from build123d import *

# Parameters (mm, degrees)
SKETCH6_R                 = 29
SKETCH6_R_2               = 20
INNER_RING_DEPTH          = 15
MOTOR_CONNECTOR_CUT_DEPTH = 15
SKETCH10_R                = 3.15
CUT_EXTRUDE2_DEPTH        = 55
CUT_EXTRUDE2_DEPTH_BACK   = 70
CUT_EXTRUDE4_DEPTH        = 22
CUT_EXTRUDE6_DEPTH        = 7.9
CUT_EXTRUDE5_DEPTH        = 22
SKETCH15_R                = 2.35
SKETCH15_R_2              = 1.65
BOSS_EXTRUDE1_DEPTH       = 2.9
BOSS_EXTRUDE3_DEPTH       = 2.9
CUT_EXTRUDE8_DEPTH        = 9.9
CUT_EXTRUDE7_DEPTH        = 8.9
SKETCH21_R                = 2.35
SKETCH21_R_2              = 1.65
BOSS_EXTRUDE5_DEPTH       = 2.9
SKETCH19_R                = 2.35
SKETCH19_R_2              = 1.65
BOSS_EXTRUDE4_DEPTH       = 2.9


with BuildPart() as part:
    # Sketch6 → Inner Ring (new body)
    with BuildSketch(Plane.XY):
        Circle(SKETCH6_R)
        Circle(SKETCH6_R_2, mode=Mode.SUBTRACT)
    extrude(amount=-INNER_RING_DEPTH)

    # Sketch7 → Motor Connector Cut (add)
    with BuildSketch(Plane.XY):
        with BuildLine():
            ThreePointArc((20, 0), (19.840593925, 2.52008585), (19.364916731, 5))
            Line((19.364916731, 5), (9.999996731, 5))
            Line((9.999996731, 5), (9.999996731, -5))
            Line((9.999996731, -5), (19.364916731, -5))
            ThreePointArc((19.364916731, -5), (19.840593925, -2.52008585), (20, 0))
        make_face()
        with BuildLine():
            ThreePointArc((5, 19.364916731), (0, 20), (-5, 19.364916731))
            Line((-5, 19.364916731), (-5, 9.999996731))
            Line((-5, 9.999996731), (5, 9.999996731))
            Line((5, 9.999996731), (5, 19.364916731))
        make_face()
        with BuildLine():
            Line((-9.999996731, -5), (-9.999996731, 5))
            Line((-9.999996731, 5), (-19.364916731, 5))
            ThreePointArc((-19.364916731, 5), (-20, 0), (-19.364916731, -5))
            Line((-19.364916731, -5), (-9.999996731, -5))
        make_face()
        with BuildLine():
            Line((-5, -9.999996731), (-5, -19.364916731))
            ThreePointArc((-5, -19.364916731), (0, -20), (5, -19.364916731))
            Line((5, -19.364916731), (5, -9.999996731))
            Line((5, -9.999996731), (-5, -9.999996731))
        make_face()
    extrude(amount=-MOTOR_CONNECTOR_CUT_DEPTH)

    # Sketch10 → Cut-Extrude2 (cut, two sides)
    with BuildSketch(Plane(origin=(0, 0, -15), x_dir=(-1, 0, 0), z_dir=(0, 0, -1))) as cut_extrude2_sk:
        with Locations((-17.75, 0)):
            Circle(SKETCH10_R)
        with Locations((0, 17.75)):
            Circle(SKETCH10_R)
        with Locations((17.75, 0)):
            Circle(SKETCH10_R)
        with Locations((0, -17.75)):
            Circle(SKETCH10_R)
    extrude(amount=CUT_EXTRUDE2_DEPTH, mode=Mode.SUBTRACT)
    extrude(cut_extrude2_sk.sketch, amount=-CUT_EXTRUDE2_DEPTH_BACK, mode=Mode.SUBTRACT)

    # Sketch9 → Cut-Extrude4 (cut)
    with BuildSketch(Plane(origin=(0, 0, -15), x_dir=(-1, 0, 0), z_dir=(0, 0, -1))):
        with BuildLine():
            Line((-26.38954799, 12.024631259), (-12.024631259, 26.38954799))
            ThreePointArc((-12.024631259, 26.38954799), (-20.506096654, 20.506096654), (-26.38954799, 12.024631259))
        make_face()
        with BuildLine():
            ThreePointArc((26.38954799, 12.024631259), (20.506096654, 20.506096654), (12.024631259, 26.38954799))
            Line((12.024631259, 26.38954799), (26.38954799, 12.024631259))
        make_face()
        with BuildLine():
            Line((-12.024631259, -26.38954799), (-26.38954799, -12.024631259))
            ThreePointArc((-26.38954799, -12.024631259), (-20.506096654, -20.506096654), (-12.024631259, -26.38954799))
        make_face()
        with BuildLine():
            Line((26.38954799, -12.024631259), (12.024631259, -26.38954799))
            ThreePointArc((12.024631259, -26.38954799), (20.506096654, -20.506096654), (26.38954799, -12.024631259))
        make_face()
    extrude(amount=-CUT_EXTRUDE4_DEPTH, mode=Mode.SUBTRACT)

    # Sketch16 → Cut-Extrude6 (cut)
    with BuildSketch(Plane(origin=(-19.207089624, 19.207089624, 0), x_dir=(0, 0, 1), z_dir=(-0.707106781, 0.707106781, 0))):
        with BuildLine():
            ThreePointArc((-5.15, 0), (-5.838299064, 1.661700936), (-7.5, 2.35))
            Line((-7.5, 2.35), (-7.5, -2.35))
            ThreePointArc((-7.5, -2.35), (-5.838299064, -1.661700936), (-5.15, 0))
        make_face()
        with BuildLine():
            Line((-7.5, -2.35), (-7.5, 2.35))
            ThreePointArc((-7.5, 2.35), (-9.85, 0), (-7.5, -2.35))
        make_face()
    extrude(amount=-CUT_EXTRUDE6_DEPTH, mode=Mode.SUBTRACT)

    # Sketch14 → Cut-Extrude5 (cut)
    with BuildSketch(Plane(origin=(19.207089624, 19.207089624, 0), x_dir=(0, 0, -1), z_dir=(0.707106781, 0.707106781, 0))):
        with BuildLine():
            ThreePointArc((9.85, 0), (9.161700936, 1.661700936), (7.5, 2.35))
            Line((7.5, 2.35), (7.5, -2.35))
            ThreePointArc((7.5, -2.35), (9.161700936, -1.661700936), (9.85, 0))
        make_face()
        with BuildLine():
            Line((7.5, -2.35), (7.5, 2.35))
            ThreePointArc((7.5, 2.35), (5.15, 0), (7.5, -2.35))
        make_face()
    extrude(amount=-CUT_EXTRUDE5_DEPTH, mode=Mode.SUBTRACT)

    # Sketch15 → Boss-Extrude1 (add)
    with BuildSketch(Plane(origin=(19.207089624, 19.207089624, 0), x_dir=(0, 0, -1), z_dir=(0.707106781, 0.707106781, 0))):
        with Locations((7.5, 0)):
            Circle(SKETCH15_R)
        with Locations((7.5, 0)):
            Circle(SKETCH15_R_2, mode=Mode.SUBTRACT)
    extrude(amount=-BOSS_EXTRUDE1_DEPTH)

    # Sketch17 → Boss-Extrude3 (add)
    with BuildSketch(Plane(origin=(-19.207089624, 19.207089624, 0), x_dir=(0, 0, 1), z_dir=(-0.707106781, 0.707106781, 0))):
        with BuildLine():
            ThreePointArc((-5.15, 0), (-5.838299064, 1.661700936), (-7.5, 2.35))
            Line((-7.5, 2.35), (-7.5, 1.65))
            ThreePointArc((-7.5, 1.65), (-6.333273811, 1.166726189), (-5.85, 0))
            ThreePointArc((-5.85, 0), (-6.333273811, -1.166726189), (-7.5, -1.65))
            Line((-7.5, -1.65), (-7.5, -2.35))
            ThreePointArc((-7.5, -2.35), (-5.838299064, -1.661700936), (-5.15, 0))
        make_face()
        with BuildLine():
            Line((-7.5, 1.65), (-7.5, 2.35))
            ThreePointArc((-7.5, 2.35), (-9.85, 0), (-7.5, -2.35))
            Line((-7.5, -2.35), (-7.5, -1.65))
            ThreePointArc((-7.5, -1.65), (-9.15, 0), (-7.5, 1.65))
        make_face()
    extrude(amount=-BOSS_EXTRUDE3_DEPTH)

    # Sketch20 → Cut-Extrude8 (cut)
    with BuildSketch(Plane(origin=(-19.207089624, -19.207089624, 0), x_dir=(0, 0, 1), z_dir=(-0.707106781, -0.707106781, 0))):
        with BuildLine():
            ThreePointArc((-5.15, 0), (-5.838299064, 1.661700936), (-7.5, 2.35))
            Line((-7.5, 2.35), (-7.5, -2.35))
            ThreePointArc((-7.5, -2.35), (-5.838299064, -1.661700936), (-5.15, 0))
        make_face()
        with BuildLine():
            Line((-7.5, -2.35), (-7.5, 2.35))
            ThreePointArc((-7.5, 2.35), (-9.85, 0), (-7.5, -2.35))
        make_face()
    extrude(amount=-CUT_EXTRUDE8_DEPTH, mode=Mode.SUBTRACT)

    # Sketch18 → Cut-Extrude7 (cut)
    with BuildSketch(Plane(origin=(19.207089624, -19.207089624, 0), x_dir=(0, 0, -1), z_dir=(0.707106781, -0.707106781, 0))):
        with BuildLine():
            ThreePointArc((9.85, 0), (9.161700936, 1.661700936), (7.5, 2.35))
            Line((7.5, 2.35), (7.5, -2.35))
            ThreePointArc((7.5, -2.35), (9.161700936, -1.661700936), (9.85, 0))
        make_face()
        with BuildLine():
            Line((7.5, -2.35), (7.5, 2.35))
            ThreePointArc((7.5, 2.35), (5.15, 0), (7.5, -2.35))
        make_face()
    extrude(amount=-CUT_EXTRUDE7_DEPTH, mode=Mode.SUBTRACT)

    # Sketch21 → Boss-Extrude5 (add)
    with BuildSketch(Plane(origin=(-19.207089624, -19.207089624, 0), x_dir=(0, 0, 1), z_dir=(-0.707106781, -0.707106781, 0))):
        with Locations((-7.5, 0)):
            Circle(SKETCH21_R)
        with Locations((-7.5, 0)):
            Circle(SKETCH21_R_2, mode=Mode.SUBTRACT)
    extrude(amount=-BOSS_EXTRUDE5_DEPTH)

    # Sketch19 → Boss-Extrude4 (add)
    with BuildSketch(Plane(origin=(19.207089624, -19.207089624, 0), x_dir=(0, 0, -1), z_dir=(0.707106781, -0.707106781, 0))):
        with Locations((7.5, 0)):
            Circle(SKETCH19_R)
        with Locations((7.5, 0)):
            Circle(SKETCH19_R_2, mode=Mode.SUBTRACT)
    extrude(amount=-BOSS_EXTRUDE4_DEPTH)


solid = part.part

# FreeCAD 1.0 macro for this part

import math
import FreeCAD as App
import Part
import Sketcher
from FreeCAD import Vector

doc = App.newDocument("Part")
params = doc.addObject("Spreadsheet::Sheet", "Params")
for row, (alias, value) in enumerate([
    ("sketch1_diameter", "58 mm"),
    ("sketch1_diameter2", "40 mm"),
    ("pad1_length", "15 mm"),
    ("sketch2_radius", "20 mm"),
    ("sketch2_width", "10 mm"),
    ("pad2_length", "15 mm"),
    ("sketch3_diameter", "6.3 mm"),
    ("sketch4_radius", "29 mm"),
    ("pocket2_length", "22 mm"),
    ("sketch5_radius", "2.35 mm"),
    ("pocket3_length", "7.9 mm"),
    ("sketch6_radius", "2.35 mm"),
    ("pocket4_length", "22 mm"),
    ("sketch7_diameter", "4.7 mm"),
    ("sketch7_diameter2", "3.3 mm"),
    ("pad3_length", "2.9 mm"),
    ("sketch8_radius", "2.35 mm"),
    ("sketch8_radius2", "1.65 mm"),
    ("pad4_length", "2.9 mm"),
    ("sketch9_radius", "2.35 mm"),
    ("pocket5_length", "9.9 mm"),
    ("sketch10_radius", "2.35 mm"),
    ("pocket6_length", "8.9 mm"),
    ("sketch11_diameter", "4.7 mm"),
    ("sketch11_diameter2", "3.3 mm"),
    ("pad5_length", "2.9 mm"),
    ("sketch12_diameter", "4.7 mm"),
    ("sketch12_diameter2", "3.3 mm"),
    ("pad6_length", "2.9 mm"),
], start=1):
    params.set(f"A{row}", alias)
    params.set(f"B{row}", "=" + value)
    params.setAlias(f"B{row}", alias)

body = doc.addObject("PartDesign::Body", "Body")

sketch1 = body.newObject("Sketcher::SketchObject", "Sketch")
sketch1.AttachmentSupport = (doc.getObject("XY_Plane"), [""])
sketch1.MapMode = "FlatFace"
sketch1.addGeometry([
    Part.Circle(Vector(0, 0, 0), Vector(0, 0, 1), 29),
    Part.Circle(Vector(0, 0, 0), Vector(0, 0, 1), 20),
], False)
sketch1.addConstraint([
    Sketcher.Constraint("Coincident", 0, 3, -1, 1),
    Sketcher.Constraint("Coincident", 1, 3, -1, 1),
    Sketcher.Constraint("Diameter", 0, 58.0),
    Sketcher.Constraint("Diameter", 1, 40.0),
])
sketch1.setExpression("Constraints[2]", "Params.sketch1_diameter")
sketch1.setExpression("Constraints[3]", "Params.sketch1_diameter2")
pad1 = body.newObject("PartDesign::Pad", "Pad")
pad1.Profile = sketch1
pad1.setExpression("Length", "Params.pad1_length")
pad1.Reversed = True

sketch2 = body.newObject("Sketcher::SketchObject", "Sketch001")
sketch2.AttachmentSupport = (doc.getObject("XY_Plane"), [""])
sketch2.MapMode = "FlatFace"
sketch2.addGeometry([
    Part.ArcOfCircle(Part.Circle(Vector(0, 0, 0), Vector(0, 0, 1), 20), math.radians(0), math.radians(14.477512)),
    Part.LineSegment(Vector(19.364917, 5, 0), Vector(9.999997, 5, 0)),
    Part.LineSegment(Vector(9.999997, 5, 0), Vector(9.999997, -5, 0)),
    Part.LineSegment(Vector(9.999997, -5, 0), Vector(19.364917, -5, 0)),
    Part.ArcOfCircle(Part.Circle(Vector(0, 0, 0), Vector(0, 0, 1), 20), math.radians(-14.477512), math.radians(0)),
    Part.ArcOfCircle(Part.Circle(Vector(0, 0, 0), Vector(0, 0, 1), 20), math.radians(75.522488), math.radians(104.477512)),
    Part.LineSegment(Vector(-5, 19.364917, 0), Vector(-5, 9.999997, 0)),
    Part.LineSegment(Vector(-5, 9.999997, 0), Vector(5, 9.999997, 0)),
    Part.LineSegment(Vector(5, 9.999997, 0), Vector(5, 19.364917, 0)),
    Part.LineSegment(Vector(-9.999997, -5, 0), Vector(-9.999997, 5, 0)),
    Part.LineSegment(Vector(-9.999997, 5, 0), Vector(-19.364917, 5, 0)),
    Part.ArcOfCircle(Part.Circle(Vector(0, 0, 0), Vector(0, 0, 1), 20), math.radians(165.522488), math.radians(194.477512)),
    Part.LineSegment(Vector(-19.364917, -5, 0), Vector(-9.999997, -5, 0)),
    Part.LineSegment(Vector(-5, -9.999997, 0), Vector(-5, -19.364917, 0)),
    Part.ArcOfCircle(Part.Circle(Vector(0, 0, 0), Vector(0, 0, 1), 20), math.radians(-104.477512), math.radians(-75.522488)),
    Part.LineSegment(Vector(5, -19.364917, 0), Vector(5, -9.999997, 0)),
    Part.LineSegment(Vector(5, -9.999997, 0), Vector(-5, -9.999997, 0)),
], False)
sketch2.addConstraint([
    Sketcher.Constraint("Coincident", 0, 2, 1, 1),
    Sketcher.Constraint("Coincident", 1, 2, 2, 1),
    Sketcher.Constraint("Coincident", 2, 2, 3, 1),
    Sketcher.Constraint("Coincident", 3, 2, 4, 1),
    Sketcher.Constraint("Tangent", 4, 2, 0, 1),
    Sketcher.Constraint("Coincident", 5, 2, 6, 1),
    Sketcher.Constraint("Coincident", 6, 2, 7, 1),
    Sketcher.Constraint("Coincident", 7, 2, 8, 1),
    Sketcher.Constraint("Coincident", 8, 2, 5, 1),
    Sketcher.Constraint("Coincident", 9, 2, 10, 1),
    Sketcher.Constraint("Coincident", 10, 2, 11, 1),
    Sketcher.Constraint("Coincident", 11, 2, 12, 1),
    Sketcher.Constraint("Coincident", 12, 2, 9, 1),
    Sketcher.Constraint("Coincident", 13, 2, 14, 1),
    Sketcher.Constraint("Coincident", 14, 2, 15, 1),
    Sketcher.Constraint("Coincident", 15, 2, 16, 1),
    Sketcher.Constraint("Coincident", 16, 2, 13, 1),
    Sketcher.Constraint("Horizontal", 1),
    Sketcher.Constraint("Vertical", 2),
    Sketcher.Constraint("Horizontal", 3),
    Sketcher.Constraint("Vertical", 6),
    Sketcher.Constraint("Horizontal", 7),
    Sketcher.Constraint("Vertical", 8),
    Sketcher.Constraint("Vertical", 9),
    Sketcher.Constraint("Horizontal", 10),
    Sketcher.Constraint("Horizontal", 12),
    Sketcher.Constraint("Vertical", 13),
    Sketcher.Constraint("Vertical", 15),
    Sketcher.Constraint("Horizontal", 16),
    Sketcher.Constraint("Coincident", 0, 3, -1, 1),
    Sketcher.Constraint("Coincident", 5, 3, -1, 1),
    Sketcher.Constraint("Coincident", 11, 3, -1, 1),
    Sketcher.Constraint("Coincident", 14, 3, -1, 1),
    Sketcher.Constraint("Equal", 0, 4),
    Sketcher.Constraint("Equal", 4, 5),
    Sketcher.Constraint("Equal", 5, 11),
    Sketcher.Constraint("Equal", 11, 14),
    Sketcher.Constraint("Symmetric", 2, 2, 9, 2, -1, 1),
    Sketcher.Constraint("Symmetric", 6, 2, 15, 2, -1, 1),
    Sketcher.Constraint("PointOnObject", 4, 2, -1),
    Sketcher.Constraint("Horizontal", 5, 2, 8, 2),
    Sketcher.Constraint("Horizontal", 1, 2, 9, 2),
    Sketcher.Constraint("Horizontal", 3, 2, 11, 2),
    Sketcher.Constraint("Horizontal", 13, 2, 14, 2),
    Sketcher.Constraint("Equal", 16, 2),
    Sketcher.Constraint("Equal", 12, 6),
    Sketcher.Constraint("Radius", 0, 20.0),
    Sketcher.Constraint("DistanceX", 7, 1, 7, 2, 10.0),
    Sketcher.Constraint("DistanceX", 1, 2, 1, 1, 9.36492),
])
sketch2.setExpression("Constraints[46]", "Params.sketch2_radius")
sketch2.setExpression("Constraints[47]", "Params.sketch2_width")
pad2 = body.newObject("PartDesign::Pad", "Pad001")
pad2.Profile = sketch2
pad2.setExpression("Length", "Params.pad2_length")
pad2.Reversed = True

sketch3 = body.newObject("Sketcher::SketchObject", "Sketch002")
sketch3.AttachmentSupport = (doc.getObject("XY_Plane"), [""])
sketch3.MapMode = "FlatFace"
sketch3.AttachmentOffset = App.Placement(Vector(0, 0, -15), App.Rotation())
sketch3.addGeometry([
    Part.Circle(Vector(17.75, 0, 0), Vector(0, 0, 1), 3.15),
    Part.Circle(Vector(0, 17.75, 0), Vector(0, 0, 1), 3.15),
    Part.Circle(Vector(-17.75, 0, 0), Vector(0, 0, 1), 3.15),
    Part.Circle(Vector(0, -17.75, 0), Vector(0, 0, 1), 3.15),
], False)
sketch3.addConstraint([
    Sketcher.Constraint("Equal", 0, 1),
    Sketcher.Constraint("Equal", 1, 2),
    Sketcher.Constraint("Equal", 2, 3),
    Sketcher.Constraint("Symmetric", 0, 3, 2, 3, -1, 1),
    Sketcher.Constraint("Symmetric", 1, 3, 3, 3, -1, 1),
    Sketcher.Constraint("PointOnObject", 0, 3, -1),
    Sketcher.Constraint("PointOnObject", 1, 3, -2),
    Sketcher.Constraint("Diameter", 0, 6.3),
    Sketcher.Constraint("DistanceX", 2, 3, 0, 3, 35.5),
    Sketcher.Constraint("DistanceY", 3, 3, 1, 3, 35.5),
])
sketch3.setExpression("Constraints[7]", "Params.sketch3_diameter")
pocket1 = body.newObject("PartDesign::Pocket", "Pocket")
pocket1.Profile = sketch3
pocket1.Type = "ThroughAll"
pocket1.Midplane = True

sketch4 = body.newObject("Sketcher::SketchObject", "Sketch003")
sketch4.AttachmentSupport = (doc.getObject("XY_Plane"), [""])
sketch4.MapMode = "FlatFace"
sketch4.AttachmentOffset = App.Placement(Vector(0, 0, -15), App.Rotation())
sketch4.addGeometry([
    Part.LineSegment(Vector(26.389548, 12.024631, 0), Vector(12.024631, 26.389548, 0)),
    Part.ArcOfCircle(Part.Circle(Vector(0, 0, 0), Vector(0, 0, 1), 29), math.radians(24.496802), math.radians(65.503198)),
    Part.ArcOfCircle(Part.Circle(Vector(0, 0, 0), Vector(0, 0, 1), 29), math.radians(114.496802), math.radians(155.503198)),
    Part.LineSegment(Vector(-12.024631, 26.389548, 0), Vector(-26.389548, 12.024631, 0)),
    Part.LineSegment(Vector(12.024631, -26.389548, 0), Vector(26.389548, -12.024631, 0)),
    Part.ArcOfCircle(Part.Circle(Vector(0, 0, 0), Vector(0, 0, 1), 29), math.radians(-65.503198), math.radians(-24.496802)),
    Part.LineSegment(Vector(-26.389548, -12.024631, 0), Vector(-12.024631, -26.389548, 0)),
    Part.ArcOfCircle(Part.Circle(Vector(0, 0, 0), Vector(0, 0, 1), 29), math.radians(-155.503198), math.radians(-114.496802)),
], False)
sketch4.addConstraint([
    Sketcher.Constraint("Coincident", 0, 1, 1, 1),
    Sketcher.Constraint("Coincident", 1, 2, 0, 2),
    Sketcher.Constraint("Coincident", 2, 1, 3, 1),
    Sketcher.Constraint("Coincident", 3, 2, 2, 2),
    Sketcher.Constraint("Coincident", 4, 1, 5, 1),
    Sketcher.Constraint("Coincident", 5, 2, 4, 2),
    Sketcher.Constraint("Coincident", 6, 1, 7, 1),
    Sketcher.Constraint("Coincident", 7, 2, 6, 2),
    Sketcher.Constraint("Coincident", 1, 3, -1, 1),
    Sketcher.Constraint("Coincident", 2, 3, -1, 1),
    Sketcher.Constraint("Coincident", 5, 3, -1, 1),
    Sketcher.Constraint("Coincident", 7, 3, -1, 1),
    Sketcher.Constraint("Equal", 1, 2),
    Sketcher.Constraint("Equal", 2, 5),
    Sketcher.Constraint("Equal", 5, 7),
    Sketcher.Constraint("Perpendicular", 0, 3),
    Sketcher.Constraint("Parallel", 3, 4),
    Sketcher.Constraint("Perpendicular", 4, 6),
    Sketcher.Constraint("Horizontal", 1, 2, 2, 1),
    Sketcher.Constraint("Horizontal", 0, 1, 3, 2),
    Sketcher.Constraint("Horizontal", 5, 2, 6, 1),
    Sketcher.Constraint("Vertical", 1, 2, 4, 1),
    Sketcher.Constraint("Radius", 1, 29.0),
    Sketcher.Constraint("Distance", 0, 20.31506),
])
sketch4.setExpression("Constraints[22]", "Params.sketch4_radius")
pocket2 = body.newObject("PartDesign::Pocket", "Pocket001")
pocket2.Profile = sketch4
pocket2.setExpression("Length", "Params.pocket2_length")
pocket2.Reversed = True

sketch5 = body.newObject("Sketcher::SketchObject", "Sketch004")
sketch5.Placement = App.Placement(Vector(-19.20709, 19.20709, 0), App.Rotation(Vector(0, 0, 1), Vector(0.707106781, 0.707106781, 0), Vector(-0.707106781, 0.707106781, 0), "ZXY"))
sketch5.addGeometry([
    Part.ArcOfCircle(Part.Circle(Vector(-7.5, 0, 0), Vector(0, 0, 1), 2.35), math.radians(0), math.radians(90)),
    Part.ArcOfCircle(Part.Circle(Vector(-7.5, 0, 0), Vector(0, 0, 1), 2.35), math.radians(90), math.radians(270)),
    Part.ArcOfCircle(Part.Circle(Vector(-7.5, 0, 0), Vector(0, 0, 1), 2.35), math.radians(-90), math.radians(0)),
], False)
sketch5.addConstraint([
    Sketcher.Constraint("Tangent", 0, 2, 1, 1),
    Sketcher.Constraint("Tangent", 1, 2, 2, 1),
    Sketcher.Constraint("Tangent", 2, 2, 0, 1),
    Sketcher.Constraint("Symmetric", 0, 2, 1, 2, -1),
    Sketcher.Constraint("PointOnObject", 2, 2, -1),
    Sketcher.Constraint("Vertical", 2, 3, 0, 2),
    Sketcher.Constraint("Radius", 0, 2.35),
    Sketcher.Constraint("DistanceX", 0, 3, -1, 1, 7.5),
])
sketch5.setExpression("Constraints[6]", "Params.sketch5_radius")
pocket3 = body.newObject("PartDesign::Pocket", "Pocket002")
pocket3.Profile = sketch5
pocket3.setExpression("Length", "Params.pocket3_length")

sketch6 = body.newObject("Sketcher::SketchObject", "Sketch005")
sketch6.Placement = App.Placement(Vector(19.20709, 19.20709, 0), App.Rotation(Vector(0, 0, -1), Vector(-0.707106781, 0.707106781, 0), Vector(0.707106781, 0.707106781, 0), "ZXY"))
sketch6.addGeometry([
    Part.ArcOfCircle(Part.Circle(Vector(7.5, 0, 0), Vector(0, 0, 1), 2.35), math.radians(0), math.radians(90)),
    Part.ArcOfCircle(Part.Circle(Vector(7.5, 0, 0), Vector(0, 0, 1), 2.35), math.radians(90), math.radians(270)),
    Part.ArcOfCircle(Part.Circle(Vector(7.5, 0, 0), Vector(0, 0, 1), 2.35), math.radians(-90), math.radians(0)),
], False)
sketch6.addConstraint([
    Sketcher.Constraint("Tangent", 0, 2, 1, 1),
    Sketcher.Constraint("Tangent", 1, 2, 2, 1),
    Sketcher.Constraint("Tangent", 2, 2, 0, 1),
    Sketcher.Constraint("Symmetric", 0, 2, 1, 2, -1),
    Sketcher.Constraint("PointOnObject", 2, 2, -1),
    Sketcher.Constraint("Vertical", 2, 3, 0, 2),
    Sketcher.Constraint("Radius", 0, 2.35),
    Sketcher.Constraint("DistanceX", -1, 1, 0, 3, 7.5),
])
sketch6.setExpression("Constraints[6]", "Params.sketch6_radius")
pocket4 = body.newObject("PartDesign::Pocket", "Pocket003")
pocket4.Profile = sketch6
pocket4.setExpression("Length", "Params.pocket4_length")

sketch7 = body.newObject("Sketcher::SketchObject", "Sketch006")
sketch7.Placement = App.Placement(Vector(19.20709, 19.20709, 0), App.Rotation(Vector(0, 0, -1), Vector(-0.707106781, 0.707106781, 0), Vector(0.707106781, 0.707106781, 0), "ZXY"))
sketch7.addGeometry([
    Part.Circle(Vector(7.5, 0, 0), Vector(0, 0, 1), 2.35),
    Part.Circle(Vector(7.5, 0, 0), Vector(0, 0, 1), 1.65),
], False)
sketch7.addConstraint([
    Sketcher.Constraint("Coincident", 1, 3, 0, 3),
    Sketcher.Constraint("PointOnObject", 0, 3, -1),
    Sketcher.Constraint("Diameter", 0, 4.7),
    Sketcher.Constraint("Diameter", 1, 3.3),
    Sketcher.Constraint("DistanceX", -1, 1, 0, 3, 7.5),
])
sketch7.setExpression("Constraints[2]", "Params.sketch7_diameter")
sketch7.setExpression("Constraints[3]", "Params.sketch7_diameter2")
pad3 = body.newObject("PartDesign::Pad", "Pad002")
pad3.Profile = sketch7
pad3.setExpression("Length", "Params.pad3_length")
pad3.Reversed = True

sketch8 = body.newObject("Sketcher::SketchObject", "Sketch007")
sketch8.Placement = App.Placement(Vector(-19.20709, 19.20709, 0), App.Rotation(Vector(0, 0, 1), Vector(0.707106781, 0.707106781, 0), Vector(-0.707106781, 0.707106781, 0), "ZXY"))
sketch8.addGeometry([
    Part.ArcOfCircle(Part.Circle(Vector(-7.5, 0, 0), Vector(0, 0, 1), 2.35), math.radians(0), math.radians(90)),
    Part.ArcOfCircle(Part.Circle(Vector(-7.5, 0, 0), Vector(0, 0, 1), 2.35), math.radians(90), math.radians(270)),
    Part.ArcOfCircle(Part.Circle(Vector(-7.5, 0, 0), Vector(0, 0, 1), 2.35), math.radians(-90), math.radians(0)),
    Part.ArcOfCircle(Part.Circle(Vector(-7.5, 0, 0), Vector(0, 0, 1), 1.65), math.radians(-90), math.radians(0)),
    Part.ArcOfCircle(Part.Circle(Vector(-7.5, 0, 0), Vector(0, 0, 1), 1.65), math.radians(90), math.radians(270)),
    Part.ArcOfCircle(Part.Circle(Vector(-7.5, 0, 0), Vector(0, 0, 1), 1.65), math.radians(0), math.radians(90)),
], False)
sketch8.addConstraint([
    Sketcher.Constraint("Tangent", 0, 2, 1, 1),
    Sketcher.Constraint("Tangent", 1, 2, 2, 1),
    Sketcher.Constraint("Tangent", 2, 2, 0, 1),
    Sketcher.Constraint("Tangent", 3, 1, 4, 2),
    Sketcher.Constraint("Tangent", 4, 1, 5, 2),
    Sketcher.Constraint("Tangent", 5, 1, 3, 2),
    Sketcher.Constraint("Coincident", 3, 3, 0, 3),
    Sketcher.Constraint("Symmetric", 0, 2, 1, 2, -1),
    Sketcher.Constraint("PointOnObject", 2, 2, -1),
    Sketcher.Constraint("PointOnObject", 5, 1, -1),
    Sketcher.Constraint("Vertical", 5, 3, 0, 2),
    Sketcher.Constraint("Vertical", 1, 2, 3, 1),
    Sketcher.Constraint("Vertical", 3, 1, 4, 1),
    Sketcher.Constraint("Radius", 0, 2.35),
    Sketcher.Constraint("Radius", 3, 1.65),
    Sketcher.Constraint("DistanceX", 0, 3, -1, 1, 7.5),
])
sketch8.setExpression("Constraints[13]", "Params.sketch8_radius")
sketch8.setExpression("Constraints[14]", "Params.sketch8_radius2")
pad4 = body.newObject("PartDesign::Pad", "Pad003")
pad4.Profile = sketch8
pad4.setExpression("Length", "Params.pad4_length")
pad4.Reversed = True

sketch9 = body.newObject("Sketcher::SketchObject", "Sketch008")
sketch9.Placement = App.Placement(Vector(-19.20709, -19.20709, 0), App.Rotation(Vector(0, 0, 1), Vector(-0.707106781, 0.707106781, 0), Vector(-0.707106781, -0.707106781, 0), "ZXY"))
sketch9.addGeometry([
    Part.ArcOfCircle(Part.Circle(Vector(-7.5, 0, 0), Vector(0, 0, 1), 2.35), math.radians(0), math.radians(90)),
    Part.ArcOfCircle(Part.Circle(Vector(-7.5, 0, 0), Vector(0, 0, 1), 2.35), math.radians(90), math.radians(270)),
    Part.ArcOfCircle(Part.Circle(Vector(-7.5, 0, 0), Vector(0, 0, 1), 2.35), math.radians(-90), math.radians(0)),
], False)
sketch9.addConstraint([
    Sketcher.Constraint("Tangent", 0, 2, 1, 1),
    Sketcher.Constraint("Tangent", 1, 2, 2, 1),
    Sketcher.Constraint("Tangent", 2, 2, 0, 1),
    Sketcher.Constraint("Symmetric", 0, 2, 1, 2, -1),
    Sketcher.Constraint("PointOnObject", 2, 2, -1),
    Sketcher.Constraint("Vertical", 2, 3, 0, 2),
    Sketcher.Constraint("Radius", 0, 2.35),
    Sketcher.Constraint("DistanceX", 0, 3, -1, 1, 7.5),
])
sketch9.setExpression("Constraints[6]", "Params.sketch9_radius")
pocket5 = body.newObject("PartDesign::Pocket", "Pocket004")
pocket5.Profile = sketch9
pocket5.setExpression("Length", "Params.pocket5_length")

sketch10 = body.newObject("Sketcher::SketchObject", "Sketch009")
sketch10.Placement = App.Placement(Vector(19.20709, -19.20709, 0), App.Rotation(Vector(0, 0, -1), Vector(0.707106781, 0.707106781, 0), Vector(0.707106781, -0.707106781, 0), "ZXY"))
sketch10.addGeometry([
    Part.ArcOfCircle(Part.Circle(Vector(7.5, 0, 0), Vector(0, 0, 1), 2.35), math.radians(0), math.radians(90)),
    Part.ArcOfCircle(Part.Circle(Vector(7.5, 0, 0), Vector(0, 0, 1), 2.35), math.radians(90), math.radians(270)),
    Part.ArcOfCircle(Part.Circle(Vector(7.5, 0, 0), Vector(0, 0, 1), 2.35), math.radians(-90), math.radians(0)),
], False)
sketch10.addConstraint([
    Sketcher.Constraint("Tangent", 0, 2, 1, 1),
    Sketcher.Constraint("Tangent", 1, 2, 2, 1),
    Sketcher.Constraint("Tangent", 2, 2, 0, 1),
    Sketcher.Constraint("Symmetric", 0, 2, 1, 2, -1),
    Sketcher.Constraint("PointOnObject", 2, 2, -1),
    Sketcher.Constraint("Vertical", 2, 3, 0, 2),
    Sketcher.Constraint("Radius", 0, 2.35),
    Sketcher.Constraint("DistanceX", -1, 1, 0, 3, 7.5),
])
sketch10.setExpression("Constraints[6]", "Params.sketch10_radius")
pocket6 = body.newObject("PartDesign::Pocket", "Pocket005")
pocket6.Profile = sketch10
pocket6.setExpression("Length", "Params.pocket6_length")

sketch11 = body.newObject("Sketcher::SketchObject", "Sketch010")
sketch11.Placement = App.Placement(Vector(-19.20709, -19.20709, 0), App.Rotation(Vector(0, 0, 1), Vector(-0.707106781, 0.707106781, 0), Vector(-0.707106781, -0.707106781, 0), "ZXY"))
sketch11.addGeometry([
    Part.Circle(Vector(-7.5, 0, 0), Vector(0, 0, 1), 2.35),
    Part.Circle(Vector(-7.5, 0, 0), Vector(0, 0, 1), 1.65),
], False)
sketch11.addConstraint([
    Sketcher.Constraint("Coincident", 1, 3, 0, 3),
    Sketcher.Constraint("PointOnObject", 0, 3, -1),
    Sketcher.Constraint("Diameter", 0, 4.7),
    Sketcher.Constraint("Diameter", 1, 3.3),
    Sketcher.Constraint("DistanceX", 0, 3, -1, 1, 7.5),
])
sketch11.setExpression("Constraints[2]", "Params.sketch11_diameter")
sketch11.setExpression("Constraints[3]", "Params.sketch11_diameter2")
pad5 = body.newObject("PartDesign::Pad", "Pad004")
pad5.Profile = sketch11
pad5.setExpression("Length", "Params.pad5_length")
pad5.Reversed = True

sketch12 = body.newObject("Sketcher::SketchObject", "Sketch011")
sketch12.Placement = App.Placement(Vector(19.20709, -19.20709, 0), App.Rotation(Vector(0, 0, -1), Vector(0.707106781, 0.707106781, 0), Vector(0.707106781, -0.707106781, 0), "ZXY"))
sketch12.addGeometry([
    Part.Circle(Vector(7.5, 0, 0), Vector(0, 0, 1), 2.35),
    Part.Circle(Vector(7.5, 0, 0), Vector(0, 0, 1), 1.65),
], False)
sketch12.addConstraint([
    Sketcher.Constraint("Coincident", 1, 3, 0, 3),
    Sketcher.Constraint("PointOnObject", 0, 3, -1),
    Sketcher.Constraint("Diameter", 0, 4.7),
    Sketcher.Constraint("Diameter", 1, 3.3),
    Sketcher.Constraint("DistanceX", -1, 1, 0, 3, 7.5),
])
sketch12.setExpression("Constraints[2]", "Params.sketch12_diameter")
sketch12.setExpression("Constraints[3]", "Params.sketch12_diameter2")
pad6 = body.newObject("PartDesign::Pad", "Pad005")
pad6.Profile = sketch12
pad6.setExpression("Length", "Params.pad6_length")
pad6.Reversed = True

doc.recompute()
